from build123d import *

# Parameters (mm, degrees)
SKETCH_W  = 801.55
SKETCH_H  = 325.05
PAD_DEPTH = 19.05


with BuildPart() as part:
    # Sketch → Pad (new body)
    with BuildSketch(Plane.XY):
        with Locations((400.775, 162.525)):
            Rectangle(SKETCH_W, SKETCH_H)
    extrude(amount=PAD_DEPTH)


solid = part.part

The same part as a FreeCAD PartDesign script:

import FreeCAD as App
import Part
import Sketcher
Q = App.Units.Quantity

doc = App.newDocument("Part")
body = doc.addObject("PartDesign::Body", "Body")

# Sketch on XY plane
sketch1 = body.newObject("Sketcher::SketchObject", "Sketch")
sketch1.AttachmentSupport = (doc.getObject("XY_Plane"), [""])
sketch1.MapMode = "FlatFace"
sketch1.addGeometry(Part.LineSegment(App.Vector(0, 325, 0), App.Vector(0, 0, 0)), False)
sketch1.addGeometry(Part.LineSegment(App.Vector(0, 0, 0), App.Vector(802, 0, 0)), False)
sketch1.addGeometry(Part.LineSegment(App.Vector(802, 0, 0), App.Vector(802, 325, 0)), False)
sketch1.addGeometry(Part.LineSegment(App.Vector(802, 325, 0), App.Vector(0, 325, 0)), False)
sketch1.addConstraint(Sketcher.Constraint("Coincident", 0, 2, 1, 1))
sketch1.addConstraint(Sketcher.Constraint("Coincident", 1, 2, 2, 1))
sketch1.addConstraint(Sketcher.Constraint("Coincident", 2, 2, 3, 1))
sketch1.addConstraint(Sketcher.Constraint("Coincident", 3, 2, 0, 1))
sketch1.addConstraint(Sketcher.Constraint("Vertical", 0))
sketch1.addConstraint(Sketcher.Constraint("Horizontal", 1))
sketch1.addConstraint(Sketcher.Constraint("Vertical", 2))
sketch1.addConstraint(Sketcher.Constraint("Horizontal", 3))
sketch1.addConstraint(Sketcher.Constraint("Coincident", 0, 2, -1, 1))
sketch1.addConstraint(Sketcher.Constraint("DistanceX", 1, 1, 1, 2, Q("801.55 mm")))
sketch1.addConstraint(Sketcher.Constraint("DistanceY", 0, 2, 0, 1, Q("325.05 mm")))
pad1 = body.newObject("PartDesign::Pad", "Pad")
pad1.Profile = sketch1
pad1.Length = Q("0.75 in")

doc.recompute()
